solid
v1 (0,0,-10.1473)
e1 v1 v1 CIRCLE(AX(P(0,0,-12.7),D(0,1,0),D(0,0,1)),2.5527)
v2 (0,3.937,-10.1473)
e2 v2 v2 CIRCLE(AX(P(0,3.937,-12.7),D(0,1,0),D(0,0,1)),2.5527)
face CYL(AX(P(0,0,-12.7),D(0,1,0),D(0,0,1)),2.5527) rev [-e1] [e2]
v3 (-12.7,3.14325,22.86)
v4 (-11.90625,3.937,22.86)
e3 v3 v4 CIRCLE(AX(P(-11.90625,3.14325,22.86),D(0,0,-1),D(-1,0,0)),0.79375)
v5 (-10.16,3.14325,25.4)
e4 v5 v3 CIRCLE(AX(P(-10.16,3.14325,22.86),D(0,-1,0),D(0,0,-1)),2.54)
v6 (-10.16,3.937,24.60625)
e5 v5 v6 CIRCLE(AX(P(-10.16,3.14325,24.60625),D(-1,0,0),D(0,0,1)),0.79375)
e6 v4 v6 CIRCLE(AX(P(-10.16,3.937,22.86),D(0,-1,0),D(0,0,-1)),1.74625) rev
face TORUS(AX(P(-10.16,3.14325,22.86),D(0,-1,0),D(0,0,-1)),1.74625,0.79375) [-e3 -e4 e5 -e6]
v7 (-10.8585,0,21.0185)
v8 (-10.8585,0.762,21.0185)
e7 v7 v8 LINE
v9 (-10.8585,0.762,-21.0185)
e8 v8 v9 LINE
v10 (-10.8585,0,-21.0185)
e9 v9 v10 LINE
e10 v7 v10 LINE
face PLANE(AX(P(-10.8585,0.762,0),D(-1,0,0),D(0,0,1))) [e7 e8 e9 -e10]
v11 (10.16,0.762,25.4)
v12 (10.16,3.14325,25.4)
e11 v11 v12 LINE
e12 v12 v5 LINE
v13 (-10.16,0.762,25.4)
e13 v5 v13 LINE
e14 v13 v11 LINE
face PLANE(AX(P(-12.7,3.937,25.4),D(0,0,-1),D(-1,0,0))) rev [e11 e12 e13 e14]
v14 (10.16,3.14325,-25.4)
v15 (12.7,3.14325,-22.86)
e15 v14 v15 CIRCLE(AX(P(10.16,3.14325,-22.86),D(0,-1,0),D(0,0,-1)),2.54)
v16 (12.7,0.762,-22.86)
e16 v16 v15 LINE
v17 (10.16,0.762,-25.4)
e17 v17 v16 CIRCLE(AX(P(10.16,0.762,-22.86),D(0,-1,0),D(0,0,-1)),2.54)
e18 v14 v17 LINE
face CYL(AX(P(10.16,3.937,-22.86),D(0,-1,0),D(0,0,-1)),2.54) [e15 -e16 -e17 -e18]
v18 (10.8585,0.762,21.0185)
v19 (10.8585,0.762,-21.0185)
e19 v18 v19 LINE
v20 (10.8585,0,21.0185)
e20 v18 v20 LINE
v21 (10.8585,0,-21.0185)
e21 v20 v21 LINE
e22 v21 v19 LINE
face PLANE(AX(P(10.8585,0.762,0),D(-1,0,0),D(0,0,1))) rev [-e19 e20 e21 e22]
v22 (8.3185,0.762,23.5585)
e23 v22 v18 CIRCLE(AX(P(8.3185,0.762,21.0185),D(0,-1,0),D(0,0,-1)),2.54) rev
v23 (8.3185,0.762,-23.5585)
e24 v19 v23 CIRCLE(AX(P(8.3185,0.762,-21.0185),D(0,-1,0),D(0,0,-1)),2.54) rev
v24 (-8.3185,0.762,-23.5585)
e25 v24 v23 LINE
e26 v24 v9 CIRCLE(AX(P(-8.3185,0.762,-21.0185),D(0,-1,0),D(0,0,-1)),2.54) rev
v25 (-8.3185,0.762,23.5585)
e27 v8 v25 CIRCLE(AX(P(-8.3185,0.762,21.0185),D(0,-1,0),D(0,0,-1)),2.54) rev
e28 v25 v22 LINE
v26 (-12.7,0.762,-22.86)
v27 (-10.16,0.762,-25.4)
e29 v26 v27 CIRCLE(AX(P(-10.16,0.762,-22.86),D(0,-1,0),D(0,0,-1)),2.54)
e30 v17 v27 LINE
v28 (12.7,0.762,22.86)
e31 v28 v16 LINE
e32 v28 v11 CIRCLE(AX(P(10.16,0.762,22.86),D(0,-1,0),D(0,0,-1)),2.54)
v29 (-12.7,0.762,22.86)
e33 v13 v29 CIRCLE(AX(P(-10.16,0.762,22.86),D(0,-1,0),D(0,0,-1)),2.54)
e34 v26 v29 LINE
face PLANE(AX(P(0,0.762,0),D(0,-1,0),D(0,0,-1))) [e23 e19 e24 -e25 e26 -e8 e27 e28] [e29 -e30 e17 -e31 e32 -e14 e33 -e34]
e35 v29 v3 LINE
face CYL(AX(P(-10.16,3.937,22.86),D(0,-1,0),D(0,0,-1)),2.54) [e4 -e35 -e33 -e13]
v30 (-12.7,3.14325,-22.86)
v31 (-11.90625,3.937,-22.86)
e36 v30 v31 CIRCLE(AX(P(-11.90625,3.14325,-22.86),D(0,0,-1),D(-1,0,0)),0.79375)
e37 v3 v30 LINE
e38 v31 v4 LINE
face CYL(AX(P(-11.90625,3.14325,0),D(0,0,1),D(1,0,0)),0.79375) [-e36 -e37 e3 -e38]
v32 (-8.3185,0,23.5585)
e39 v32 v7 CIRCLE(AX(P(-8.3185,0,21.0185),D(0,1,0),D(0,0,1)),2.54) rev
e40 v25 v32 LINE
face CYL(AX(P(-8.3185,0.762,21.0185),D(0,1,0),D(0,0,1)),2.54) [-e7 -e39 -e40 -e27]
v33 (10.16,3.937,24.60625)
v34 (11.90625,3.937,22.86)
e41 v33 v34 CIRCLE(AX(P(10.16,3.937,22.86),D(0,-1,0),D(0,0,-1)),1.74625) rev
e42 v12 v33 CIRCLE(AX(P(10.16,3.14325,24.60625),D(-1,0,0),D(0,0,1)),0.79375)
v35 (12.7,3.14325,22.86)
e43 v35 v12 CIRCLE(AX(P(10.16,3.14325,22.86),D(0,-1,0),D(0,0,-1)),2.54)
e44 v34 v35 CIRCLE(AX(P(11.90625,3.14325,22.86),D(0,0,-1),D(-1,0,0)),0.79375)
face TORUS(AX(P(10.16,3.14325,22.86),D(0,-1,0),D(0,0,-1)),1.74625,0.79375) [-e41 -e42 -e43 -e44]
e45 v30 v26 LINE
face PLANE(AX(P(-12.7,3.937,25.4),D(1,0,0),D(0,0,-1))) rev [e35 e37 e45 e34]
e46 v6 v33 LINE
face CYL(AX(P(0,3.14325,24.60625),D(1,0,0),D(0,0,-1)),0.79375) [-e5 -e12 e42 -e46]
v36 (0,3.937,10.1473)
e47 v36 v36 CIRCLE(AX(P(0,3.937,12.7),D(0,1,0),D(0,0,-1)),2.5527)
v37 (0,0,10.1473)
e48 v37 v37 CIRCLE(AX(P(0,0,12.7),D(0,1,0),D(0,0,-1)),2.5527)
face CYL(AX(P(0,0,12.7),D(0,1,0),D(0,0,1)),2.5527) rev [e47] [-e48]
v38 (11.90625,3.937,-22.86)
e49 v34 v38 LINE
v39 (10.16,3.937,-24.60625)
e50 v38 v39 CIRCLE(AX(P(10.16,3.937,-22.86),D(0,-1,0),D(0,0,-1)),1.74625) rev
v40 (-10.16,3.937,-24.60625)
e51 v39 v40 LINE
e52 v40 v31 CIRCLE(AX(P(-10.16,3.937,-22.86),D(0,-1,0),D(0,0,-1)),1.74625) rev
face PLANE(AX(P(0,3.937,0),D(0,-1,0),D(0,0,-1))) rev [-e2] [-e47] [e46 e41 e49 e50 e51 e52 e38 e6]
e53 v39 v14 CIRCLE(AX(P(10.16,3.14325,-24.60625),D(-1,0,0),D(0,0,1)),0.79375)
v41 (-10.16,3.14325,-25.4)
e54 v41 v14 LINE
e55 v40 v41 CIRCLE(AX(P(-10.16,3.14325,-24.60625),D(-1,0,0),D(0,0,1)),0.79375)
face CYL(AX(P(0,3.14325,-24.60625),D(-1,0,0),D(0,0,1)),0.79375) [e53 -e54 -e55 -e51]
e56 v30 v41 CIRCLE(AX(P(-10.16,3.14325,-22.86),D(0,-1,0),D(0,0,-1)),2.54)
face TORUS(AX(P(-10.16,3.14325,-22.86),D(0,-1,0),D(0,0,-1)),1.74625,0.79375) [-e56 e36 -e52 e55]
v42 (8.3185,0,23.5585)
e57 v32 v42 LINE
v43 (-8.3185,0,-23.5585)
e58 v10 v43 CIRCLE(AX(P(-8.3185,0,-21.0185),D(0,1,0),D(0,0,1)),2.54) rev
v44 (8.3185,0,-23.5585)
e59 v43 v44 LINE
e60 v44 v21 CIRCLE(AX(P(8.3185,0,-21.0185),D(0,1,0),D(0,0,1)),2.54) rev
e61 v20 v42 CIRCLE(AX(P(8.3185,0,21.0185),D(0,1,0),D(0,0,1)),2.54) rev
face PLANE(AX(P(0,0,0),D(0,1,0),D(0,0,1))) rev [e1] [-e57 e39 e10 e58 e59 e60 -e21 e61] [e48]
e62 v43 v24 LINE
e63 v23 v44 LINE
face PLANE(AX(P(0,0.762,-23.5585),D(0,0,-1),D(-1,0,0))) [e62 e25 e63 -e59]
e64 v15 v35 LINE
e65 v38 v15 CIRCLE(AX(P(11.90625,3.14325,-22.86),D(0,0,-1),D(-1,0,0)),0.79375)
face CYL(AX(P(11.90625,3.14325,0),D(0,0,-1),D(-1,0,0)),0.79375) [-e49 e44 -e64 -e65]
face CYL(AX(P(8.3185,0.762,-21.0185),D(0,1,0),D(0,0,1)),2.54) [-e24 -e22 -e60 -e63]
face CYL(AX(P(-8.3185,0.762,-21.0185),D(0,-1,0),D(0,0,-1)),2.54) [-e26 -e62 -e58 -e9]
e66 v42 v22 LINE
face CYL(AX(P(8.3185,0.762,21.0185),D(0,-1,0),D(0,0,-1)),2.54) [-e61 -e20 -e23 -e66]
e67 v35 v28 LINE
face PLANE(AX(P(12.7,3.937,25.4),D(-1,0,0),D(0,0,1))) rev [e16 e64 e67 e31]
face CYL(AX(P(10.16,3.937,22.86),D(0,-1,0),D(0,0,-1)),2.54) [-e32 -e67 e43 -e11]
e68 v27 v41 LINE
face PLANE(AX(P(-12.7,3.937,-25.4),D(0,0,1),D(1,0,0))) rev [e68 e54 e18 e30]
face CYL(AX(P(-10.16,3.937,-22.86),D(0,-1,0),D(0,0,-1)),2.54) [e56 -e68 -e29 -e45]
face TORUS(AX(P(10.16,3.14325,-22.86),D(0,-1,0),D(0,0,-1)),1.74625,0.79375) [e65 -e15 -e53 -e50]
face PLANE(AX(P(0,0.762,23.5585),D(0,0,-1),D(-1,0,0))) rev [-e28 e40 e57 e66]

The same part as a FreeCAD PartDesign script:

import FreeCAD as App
import Part
import Sketcher
from FreeCAD import Vector
Q = App.Units.Quantity


def edges_at(feature, points):
    """Names of the edges that pass closest to the given points."""
    edges = feature.Shape.Edges
    near = lambda p: min(range(len(edges)), key=lambda i: edges[i].distToShape(Part.Vertex(*p))[0])
    return sorted({f"Edge{near(p) + 1}" for p in points})


def add_polygon(sketch, points):
    """Adds a closed chain of lines whose ends are joined by coincident constraints."""
    first, n = sketch.GeometryCount, len(points)
    for a, b in zip(points, points[1:] + points[:1]):
        sketch.addGeometry(Part.LineSegment(App.Vector(*a, 0), App.Vector(*b, 0)), False)
    for i in range(n):
        sketch.addConstraint(Sketcher.Constraint("Coincident", first + i, 2, first + (i + 1) % n, 1))

doc = App.newDocument("Part")
params = doc.addObject("Spreadsheet::Sheet", "Params")
for row, (alias, value) in enumerate([
    ("sketch1_width", "0.855 in"),
    ("sketch1_height", "1.855 in"),
    ("pad1_length", "0.03 in"),
    ("sketch2_width", "1 in"),
    ("sketch2_height", "2 in"),
    ("pad2_length", "0.125 in"),
    ("sketch3_diameter", "0.201 in"),
    ("fillet_radius", "0.1 in"),
    ("fillet2_radius", "0.03125 in"),
], start=1):
    params.set(f"A{row}", alias)
    params.set(f"B{row}", "=" + value)
    params.setAlias(f"B{row}", alias)

body = doc.addObject("PartDesign::Body", "Body")

sketch1 = doc.addObject("Sketcher::SketchObject", "Sketch")
body.addObject(sketch1)
sketch1.AttachmentSupport = (doc.XZ_Plane, [""])
sketch1.MapMode = "FlatFace"
add_polygon(sketch1, [(-11, -24), (-11, 24), (11, 24), (11, -24)])
sketch1.addConstraint([
    Sketcher.Constraint("Vertical", 0),
    Sketcher.Constraint("Horizontal", 1),
    Sketcher.Constraint("Vertical", 2),
    Sketcher.Constraint("Horizontal", 3),
    Sketcher.Constraint("Symmetric", 0, 2, 2, 2, -1, 1),
    Sketcher.Constraint("DistanceX", 1, 1, 1, 2, Q("0.855 in")),
    Sketcher.Constraint("DistanceY", 0, 1, 0, 2, Q("1.855 in")),
])
sketch1.setExpression("Constraints[9]", "Params.sketch1_width")
sketch1.setExpression("Constraints[10]", "Params.sketch1_height")
pad1 = doc.addObject("PartDesign::Pad", "Pad")
body.addObject(pad1)
pad1.Profile = sketch1
pad1.setExpression("Length", "Params.pad1_length")
pad1.Reversed = True

sketch2 = doc.addObject("Sketcher::SketchObject", "Sketch001")
body.addObject(sketch2)
sketch2.AttachmentSupport = (doc.XZ_Plane, [""])
sketch2.MapMode = "FlatFace"
sketch2.AttachmentOffset = App.Placement(Vector(0, 0, -0.03 * 25.4), App.Rotation())
add_polygon(sketch2, [(-13, -25), (-13, 25), (13, 25), (13, -25)])
sketch2.addConstraint([
    Sketcher.Constraint("Vertical", 0),
    Sketcher.Constraint("Horizontal", 1),
    Sketcher.Constraint("Vertical", 2),
    Sketcher.Constraint("Horizontal", 3),
    Sketcher.Constraint("Symmetric", 0, 2, 2, 2, -1, 1),
    Sketcher.Constraint("DistanceX", 1, 1, 1, 2, Q("1 in")),
    Sketcher.Constraint("DistanceY", 0, 1, 0, 2, Q("2 in")),
])
sketch2.setExpression("Constraints[9]", "Params.sketch2_width")
sketch2.setExpression("Constraints[10]", "Params.sketch2_height")
pad2 = doc.addObject("PartDesign::Pad", "Pad001")
body.addObject(pad2)
pad2.Profile = sketch2
pad2.setExpression("Length", "Params.pad2_length")
pad2.Reversed = True

sketch3 = doc.addObject("Sketcher::SketchObject", "Sketch002")
body.addObject(sketch3)
sketch3.AttachmentSupport = (doc.XZ_Plane, [""])
sketch3.MapMode = "FlatFace"
sketch3.AttachmentOffset = App.Placement(Vector(0, 0, -0.155 * 25.4), App.Rotation())
sketch3.addGeometry([
    Part.Circle(Vector(0, -12.7, 0), Vector(0, 0, 1), 2.6),
    Part.Circle(Vector(0, 12.7, 0), Vector(0, 0, 1), 2.6),
], False)
sketch3.addConstraint([
    Sketcher.Constraint("Equal", 0, 1),
    Sketcher.Constraint("Symmetric", 0, 3, 1, 3, -1, 1),
    Sketcher.Constraint("PointOnObject", 0, 3, -2),
    Sketcher.Constraint("Diameter", 0, Q("0.201 in")),
    Sketcher.Constraint("DistanceY", 0, 3, 1, 3, Q("1 in")),
])
sketch3.setExpression("Constraints[3]", "Params.sketch3_diameter")
pocket1 = doc.addObject("PartDesign::Pocket", "Pocket")
body.addObject(pocket1)
pocket1.Profile = sketch3
pocket1.Type = "ThroughAll"
pocket1.Reversed = True
doc.recompute()

fillet = doc.addObject("PartDesign::Fillet", "Fillet")
body.addObject(fillet)
fillet.Base = (pocket1, edges_at(pocket1, [
    (12.7, 2.349, 25.4),
    (12.7, 2.349, -25.4),
    (-12.7, 2.349, -25.4),
    (-12.7, 2.349, 25.4),
    (-10.858, 0.381, -23.558),
    (10.858, 0.381, -23.558),
    (10.858, 0.381, 23.558),
    (-10.858, 0.381, 23.558),
]))
fillet.setExpression("Radius", "Params.fillet_radius")
doc.recompute()

fillet2 = doc.addObject("PartDesign::Fillet", "Fillet001")
body.addObject(fillet2)
fillet2.Base = (fillet, edges_at(fillet, [
    (0, 3.937, -25.4),
    (12.7, 3.937, 0),
    (-12.7, 3.937, 0),
    (0, 3.937, 25.4),
    (-11.956, 3.937, 24.656),
    (-11.956, 3.937, -24.656),
    (11.956, 3.937, 24.656),
    (11.956, 3.937, -24.656),
]))
fillet2.setExpression("Radius", "Params.fillet2_radius")

doc.recompute()
